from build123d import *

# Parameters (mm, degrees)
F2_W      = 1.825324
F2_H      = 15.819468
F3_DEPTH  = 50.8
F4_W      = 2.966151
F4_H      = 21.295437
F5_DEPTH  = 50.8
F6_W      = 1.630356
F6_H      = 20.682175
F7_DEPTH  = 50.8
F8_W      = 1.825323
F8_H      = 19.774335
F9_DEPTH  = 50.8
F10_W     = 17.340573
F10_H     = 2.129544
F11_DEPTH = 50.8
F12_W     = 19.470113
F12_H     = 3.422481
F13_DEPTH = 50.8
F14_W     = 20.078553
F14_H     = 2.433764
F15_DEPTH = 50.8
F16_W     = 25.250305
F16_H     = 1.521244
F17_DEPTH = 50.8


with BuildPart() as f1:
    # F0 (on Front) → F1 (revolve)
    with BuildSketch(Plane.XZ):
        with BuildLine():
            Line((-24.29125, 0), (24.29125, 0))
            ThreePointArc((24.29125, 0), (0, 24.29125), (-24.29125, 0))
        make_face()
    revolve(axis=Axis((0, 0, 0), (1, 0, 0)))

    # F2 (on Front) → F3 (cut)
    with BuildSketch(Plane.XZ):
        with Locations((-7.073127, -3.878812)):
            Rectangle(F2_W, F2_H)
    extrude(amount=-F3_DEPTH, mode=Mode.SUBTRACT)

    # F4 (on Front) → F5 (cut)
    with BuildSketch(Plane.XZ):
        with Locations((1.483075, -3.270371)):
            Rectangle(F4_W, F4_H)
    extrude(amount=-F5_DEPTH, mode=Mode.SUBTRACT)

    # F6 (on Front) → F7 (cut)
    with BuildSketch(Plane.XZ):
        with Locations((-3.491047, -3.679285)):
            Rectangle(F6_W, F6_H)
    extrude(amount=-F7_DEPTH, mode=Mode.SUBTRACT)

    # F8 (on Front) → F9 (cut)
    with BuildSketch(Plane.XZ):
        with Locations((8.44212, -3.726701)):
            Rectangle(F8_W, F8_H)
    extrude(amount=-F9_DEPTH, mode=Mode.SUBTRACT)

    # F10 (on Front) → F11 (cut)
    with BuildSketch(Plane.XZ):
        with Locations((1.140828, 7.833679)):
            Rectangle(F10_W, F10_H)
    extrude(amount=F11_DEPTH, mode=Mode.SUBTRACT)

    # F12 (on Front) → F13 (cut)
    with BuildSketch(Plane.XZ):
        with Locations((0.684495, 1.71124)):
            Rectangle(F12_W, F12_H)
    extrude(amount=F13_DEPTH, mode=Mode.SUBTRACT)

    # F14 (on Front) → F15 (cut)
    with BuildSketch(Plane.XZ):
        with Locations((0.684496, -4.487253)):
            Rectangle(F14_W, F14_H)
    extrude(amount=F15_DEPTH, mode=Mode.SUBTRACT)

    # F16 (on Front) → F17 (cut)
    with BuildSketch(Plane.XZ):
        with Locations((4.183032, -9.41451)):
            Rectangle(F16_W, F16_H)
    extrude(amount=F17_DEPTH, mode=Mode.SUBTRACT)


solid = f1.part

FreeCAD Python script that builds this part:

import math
import FreeCAD as App
import Part
import Sketcher

doc = App.newDocument("Part")
params = doc.addObject("Spreadsheet::Sheet", "Params")
for row, (alias, value) in enumerate([
    ("revolution_angle", "360 deg"),
    ("pocket1_length", "2 in"),
    ("pocket2_length", "2 in"),
    ("pocket3_length", "2 in"),
    ("pocket4_length", "2 in"),
    ("pocket5_length", "2 in"),
    ("pocket6_length", "2 in"),
    ("pocket7_length", "2 in"),
    ("pocket8_length", "2 in"),
], start=1):
    params.set(f"A{row}", alias)
    params.set(f"B{row}", "=" + value)
    params.setAlias(f"B{row}", alias)

body = doc.addObject("PartDesign::Body", "Body")

# Sketch on XZ plane
sketch1 = body.newObject("Sketcher::SketchObject", "Sketch")
sketch1.AttachmentSupport = (doc.getObject("XZ_Plane"), [""])
sketch1.MapMode = "FlatFace"
sketch1.addGeometry([
    Part.LineSegment(App.Vector(-24, 0, 0), App.Vector(24, 0, 0)),
    Part.ArcOfCircle(Part.Circle(App.Vector(0, 0, 0), App.Vector(0, 0, 1), 24), math.radians(0), math.radians(180)),
], False)
sketch1.addConstraint([
    Sketcher.Constraint("Coincident", 0, 1, 1, 2),
    Sketcher.Constraint("Coincident", 1, 1, 0, 2),
    Sketcher.Constraint("Horizontal", 0),
    Sketcher.Constraint("Coincident", 1, 3, -1, 1),
    Sketcher.Constraint("PointOnObject", 0, 1, -1),
    Sketcher.Constraint("Radius", 1, 24.29125),
])
revolution = body.newObject("PartDesign::Revolution", "Revolution")
revolution.Profile = sketch1
revolution.ReferenceAxis = (sketch1, ["H_Axis"])
revolution.setExpression("Angle", "Params.revolution_angle")

# Sketch on XZ plane
sketch2 = body.newObject("Sketcher::SketchObject", "Sketch001")
sketch2.AttachmentSupport = (doc.getObject("XZ_Plane"), [""])
sketch2.MapMode = "FlatFace"
sketch2.addGeometry([
    Part.LineSegment(App.Vector(-8, 4, 0), App.Vector(-8, -11.8, 0)),
    Part.LineSegment(App.Vector(-8, -11.8, 0), App.Vector(-6.2, -11.8, 0)),
    Part.LineSegment(App.Vector(-6.2, -11.8, 0), App.Vector(-6.2, 4, 0)),
    Part.LineSegment(App.Vector(-6.2, 4, 0), App.Vector(-8, 4, 0)),
], False)
sketch2.addConstraint([
    Sketcher.Constraint("Coincident", 0, 2, 1, 1),
    Sketcher.Constraint("Coincident", 1, 2, 2, 1),
    Sketcher.Constraint("Coincident", 2, 2, 3, 1),
    Sketcher.Constraint("Coincident", 3, 2, 0, 1),
    Sketcher.Constraint("Vertical", 0),
    Sketcher.Constraint("Horizontal", 1),
    Sketcher.Constraint("Vertical", 2),
    Sketcher.Constraint("Horizontal", 3),
    Sketcher.Constraint("DistanceX", 1, 1, 1, 2, 1.825324),
    Sketcher.Constraint("DistanceY", 0, 2, 0, 1, 15.819468),
    Sketcher.Constraint("DistanceX", 0, 2, -1, 1, 7.985789),
    Sketcher.Constraint("DistanceY", 0, 2, -1, 1, 11.788546),
])
pocket1 = body.newObject("PartDesign::Pocket", "Pocket")
pocket1.Profile = sketch2
pocket1.setExpression("Length", "Params.pocket1_length")

# Sketch on XZ plane
sketch3 = body.newObject("Sketcher::SketchObject", "Sketch002")
sketch3.AttachmentSupport = (doc.getObject("XZ_Plane"), [""])
sketch3.MapMode = "FlatFace"
sketch3.addGeometry([
    Part.LineSegment(App.Vector(0, 7.4, 0), App.Vector(0, -13.9, 0)),
    Part.LineSegment(App.Vector(0, -13.9, 0), App.Vector(3, -13.9, 0)),
    Part.LineSegment(App.Vector(3, -13.9, 0), App.Vector(3, 7.4, 0)),
    Part.LineSegment(App.Vector(3, 7.4, 0), App.Vector(0, 7.4, 0)),
], False)
sketch3.addConstraint([
    Sketcher.Constraint("Coincident", 0, 2, 1, 1),
    Sketcher.Constraint("Coincident", 1, 2, 2, 1),
    Sketcher.Constraint("Coincident", 2, 2, 3, 1),
    Sketcher.Constraint("Coincident", 3, 2, 0, 1),
    Sketcher.Constraint("Vertical", 0),
    Sketcher.Constraint("Horizontal", 1),
    Sketcher.Constraint("Vertical", 2),
    Sketcher.Constraint("Horizontal", 3),
    Sketcher.Constraint("PointOnObject", 0, 2, -2),
    Sketcher.Constraint("DistanceX", 1, 1, 1, 2, 2.966151),
    Sketcher.Constraint("DistanceY", 0, 2, 0, 1, 21.295437),
    Sketcher.Constraint("DistanceY", 0, 2, -1, 1, 13.91809),
])
pocket2 = body.newObject("PartDesign::Pocket", "Pocket001")
pocket2.Profile = sketch3
pocket2.setExpression("Length", "Params.pocket2_length")

# Sketch on XZ plane
sketch4 = body.newObject("Sketcher::SketchObject", "Sketch003")
sketch4.AttachmentSupport = (doc.getObject("XZ_Plane"), [""])
sketch4.MapMode = "FlatFace"
sketch4.addGeometry([
    Part.LineSegment(App.Vector(-4.3, 6.7, 0), App.Vector(-4.3, -14, 0)),
    Part.LineSegment(App.Vector(-4.3, -14, 0), App.Vector(-2.7, -14, 0)),
    Part.LineSegment(App.Vector(-2.7, -14, 0), App.Vector(-2.7, 6.7, 0)),
    Part.LineSegment(App.Vector(-2.7, 6.7, 0), App.Vector(-4.3, 6.7, 0)),
], False)
sketch4.addConstraint([
    Sketcher.Constraint("Coincident", 0, 2, 1, 1),
    Sketcher.Constraint("Coincident", 1, 2, 2, 1),
    Sketcher.Constraint("Coincident", 2, 2, 3, 1),
    Sketcher.Constraint("Coincident", 3, 2, 0, 1),
    Sketcher.Constraint("Vertical", 0),
    Sketcher.Constraint("Horizontal", 1),
    Sketcher.Constraint("Vertical", 2),
    Sketcher.Constraint("Horizontal", 3),
    Sketcher.Constraint("DistanceX", 1, 1, 1, 2, 1.630356),
    Sketcher.Constraint("DistanceY", 0, 2, 0, 1, 20.682175),
    Sketcher.Constraint("DistanceX", 1, 2, -1, 1, 2.675869),
    Sketcher.Constraint("DistanceY", 0, 2, -1, 1, 14.020373),
])
pocket3 = body.newObject("PartDesign::Pocket", "Pocket002")
pocket3.Profile = sketch4
pocket3.setExpression("Length", "Params.pocket3_length")

# Sketch on XZ plane
sketch5 = body.newObject("Sketcher::SketchObject", "Sketch004")
sketch5.AttachmentSupport = (doc.getObject("XZ_Plane"), [""])
sketch5.MapMode = "FlatFace"
sketch5.addGeometry([
    Part.LineSegment(App.Vector(7.5, 6.2, 0), App.Vector(7.5, -13.6, 0)),
    Part.LineSegment(App.Vector(7.5, -13.6, 0), App.Vector(9.4, -13.6, 0)),
    Part.LineSegment(App.Vector(9.4, -13.6, 0), App.Vector(9.4, 6.2, 0)),
    Part.LineSegment(App.Vector(9.4, 6.2, 0), App.Vector(7.5, 6.2, 0)),
], False)
sketch5.addConstraint([
    Sketcher.Constraint("Coincident", 0, 2, 1, 1),
    Sketcher.Constraint("Coincident", 1, 2, 2, 1),
    Sketcher.Constraint("Coincident", 2, 2, 3, 1),
    Sketcher.Constraint("Coincident", 3, 2, 0, 1),
    Sketcher.Constraint("Vertical", 0),
    Sketcher.Constraint("Horizontal", 1),
    Sketcher.Constraint("Vertical", 2),
    Sketcher.Constraint("Horizontal", 3),
    Sketcher.Constraint("DistanceX", 1, 1, 1, 2, 1.825323),
    Sketcher.Constraint("DistanceY", 0, 2, 0, 1, 19.774335),
    Sketcher.Constraint("DistanceX", -1, 1, 0, 2, 7.529458),
    Sketcher.Constraint("DistanceY", 0, 2, -1, 1, 13.613869),
])
pocket4 = body.newObject("PartDesign::Pocket", "Pocket003")
pocket4.Profile = sketch5
pocket4.setExpression("Length", "Params.pocket4_length")

# Sketch on XZ plane
sketch6 = body.newObject("Sketcher::SketchObject", "Sketch005")
sketch6.AttachmentSupport = (doc.getObject("XZ_Plane"), [""])
sketch6.MapMode = "FlatFace"
sketch6.addGeometry([
    Part.LineSegment(App.Vector(-7.5, 8.9, 0), App.Vector(-7.5, 6.8, 0)),
    Part.LineSegment(App.Vector(-7.5, 6.8, 0), App.Vector(9.8, 6.8, 0)),
    Part.LineSegment(App.Vector(9.8, 6.8, 0), App.Vector(9.8, 8.9, 0)),
    Part.LineSegment(App.Vector(9.8, 8.9, 0), App.Vector(-7.5, 8.9, 0)),
], False)
sketch6.addConstraint([
    Sketcher.Constraint("Coincident", 0, 2, 1, 1),
    Sketcher.Constraint("Coincident", 1, 2, 2, 1),
    Sketcher.Constraint("Coincident", 2, 2, 3, 1),
    Sketcher.Constraint("Coincident", 3, 2, 0, 1),
    Sketcher.Constraint("Vertical", 0),
    Sketcher.Constraint("Horizontal", 1),
    Sketcher.Constraint("Vertical", 2),
    Sketcher.Constraint("Horizontal", 3),
    Sketcher.Constraint("DistanceX", 1, 1, 1, 2, 17.340573),
    Sketcher.Constraint("DistanceY", 0, 2, 0, 1, 2.129544),
    Sketcher.Constraint("DistanceX", 0, 2, -1, 1, 7.529458),
    Sketcher.Constraint("DistanceY", -1, 1, 2, 2, 8.898451),
])
pocket5 = body.newObject("PartDesign::Pocket", "Pocket004")
pocket5.Profile = sketch6
pocket5.setExpression("Length", "Params.pocket5_length")
pocket5.Reversed = True

# Sketch on XZ plane
sketch7 = body.newObject("Sketcher::SketchObject", "Sketch006")
sketch7.AttachmentSupport = (doc.getObject("XZ_Plane"), [""])
sketch7.MapMode = "FlatFace"
sketch7.addGeometry([
    Part.LineSegment(App.Vector(-9.1, 3.4, 0), App.Vector(-9.1, 0, 0)),
    Part.LineSegment(App.Vector(-9.1, 0, 0), App.Vector(10.4, 0, 0)),
    Part.LineSegment(App.Vector(10.4, 0, 0), App.Vector(10.4, 3.4, 0)),
    Part.LineSegment(App.Vector(10.4, 3.4, 0), App.Vector(-9.1, 3.4, 0)),
], False)
sketch7.addConstraint([
    Sketcher.Constraint("Coincident", 0, 2, 1, 1),
    Sketcher.Constraint("Coincident", 1, 2, 2, 1),
    Sketcher.Constraint("Coincident", 2, 2, 3, 1),
    Sketcher.Constraint("Coincident", 3, 2, 0, 1),
    Sketcher.Constraint("Vertical", 0),
    Sketcher.Constraint("Horizontal", 1),
    Sketcher.Constraint("Vertical", 2),
    Sketcher.Constraint("Horizontal", 3),
    Sketcher.Constraint("PointOnObject", 0, 2, -1),
    Sketcher.Constraint("DistanceY", 0, 2, 0, 1, 3.422481),
    Sketcher.Constraint("DistanceX", 1, 1, 1, 2, 19.470113),
    Sketcher.Constraint("DistanceX", 0, 2, -1, 1, 9.050562),
])
pocket6 = body.newObject("PartDesign::Pocket", "Pocket005")
pocket6.Profile = sketch7
pocket6.setExpression("Length", "Params.pocket6_length")
pocket6.Reversed = True

# Sketch on XZ plane
sketch8 = body.newObject("Sketcher::SketchObject", "Sketch007")
sketch8.AttachmentSupport = (doc.getObject("XZ_Plane"), [""])
sketch8.MapMode = "FlatFace"
sketch8.addGeometry([
    Part.LineSegment(App.Vector(-9.4, -3.3, 0), App.Vector(-9.4, -5.7, 0)),
    Part.LineSegment(App.Vector(-9.4, -5.7, 0), App.Vector(10.7, -5.7, 0)),
    Part.LineSegment(App.Vector(10.7, -5.7, 0), App.Vector(10.7, -3.3, 0)),
    Part.LineSegment(App.Vector(10.7, -3.3, 0), App.Vector(-9.4, -3.3, 0)),
], False)
sketch8.addConstraint([
    Sketcher.Constraint("Coincident", 0, 2, 1, 1),
    Sketcher.Constraint("Coincident", 1, 2, 2, 1),
    Sketcher.Constraint("Coincident", 2, 2, 3, 1),
    Sketcher.Constraint("Coincident", 3, 2, 0, 1),
    Sketcher.Constraint("Vertical", 0),
    Sketcher.Constraint("Horizontal", 1),
    Sketcher.Constraint("Vertical", 2),
    Sketcher.Constraint("Horizontal", 3),
    Sketcher.Constraint("DistanceX", 1, 1, 1, 2, 20.078553),
    Sketcher.Constraint("DistanceY", 0, 2, 0, 1, 2.433764),
    Sketcher.Constraint("DistanceX", 0, 2, -1, 1, 9.354781),
    Sketcher.Constraint("DistanceY", 2, 2, -1, 1, 3.270371),
])
pocket7 = body.newObject("PartDesign::Pocket", "Pocket006")
pocket7.Profile = sketch8
pocket7.setExpression("Length", "Params.pocket7_length")
pocket7.Reversed = True

# Sketch on XZ plane
sketch9 = body.newObject("Sketcher::SketchObject", "Sketch008")
sketch9.AttachmentSupport = (doc.getObject("XZ_Plane"), [""])
sketch9.MapMode = "FlatFace"
sketch9.addGeometry([
    Part.LineSegment(App.Vector(-8.4, -8.7, 0), App.Vector(-8.4, -10.2, 0)),
    Part.LineSegment(App.Vector(-8.4, -10.2, 0), App.Vector(16.8, -10.2, 0)),
    Part.LineSegment(App.Vector(16.8, -10.2, 0), App.Vector(16.8, -8.7, 0)),
    Part.LineSegment(App.Vector(16.8, -8.7, 0), App.Vector(-8.4, -8.7, 0)),
], False)
sketch9.addConstraint([
    Sketcher.Constraint("Coincident", 0, 2, 1, 1),
    Sketcher.Constraint("Coincident", 1, 2, 2, 1),
    Sketcher.Constraint("Coincident", 2, 2, 3, 1),
    Sketcher.Constraint("Coincident", 3, 2, 0, 1),
    Sketcher.Constraint("Vertical", 0),
    Sketcher.Constraint("Horizontal", 1),
    Sketcher.Constraint("Vertical", 2),
    Sketcher.Constraint("Horizontal", 3),
    Sketcher.Constraint("DistanceX", 1, 1, 1, 2, 25.250305),
    Sketcher.Constraint("DistanceY", 0, 2, 0, 1, 1.521244),
    Sketcher.Constraint("DistanceX", 0, 2, -1, 1, 8.44212),
    Sketcher.Constraint("DistanceY", 0, 2, -1, 1, 10.175132),
])
pocket8 = body.newObject("PartDesign::Pocket", "Pocket007")
pocket8.Profile = sketch9
pocket8.setExpression("Length", "Params.pocket8_length")
pocket8.Reversed = True

doc.recompute()
